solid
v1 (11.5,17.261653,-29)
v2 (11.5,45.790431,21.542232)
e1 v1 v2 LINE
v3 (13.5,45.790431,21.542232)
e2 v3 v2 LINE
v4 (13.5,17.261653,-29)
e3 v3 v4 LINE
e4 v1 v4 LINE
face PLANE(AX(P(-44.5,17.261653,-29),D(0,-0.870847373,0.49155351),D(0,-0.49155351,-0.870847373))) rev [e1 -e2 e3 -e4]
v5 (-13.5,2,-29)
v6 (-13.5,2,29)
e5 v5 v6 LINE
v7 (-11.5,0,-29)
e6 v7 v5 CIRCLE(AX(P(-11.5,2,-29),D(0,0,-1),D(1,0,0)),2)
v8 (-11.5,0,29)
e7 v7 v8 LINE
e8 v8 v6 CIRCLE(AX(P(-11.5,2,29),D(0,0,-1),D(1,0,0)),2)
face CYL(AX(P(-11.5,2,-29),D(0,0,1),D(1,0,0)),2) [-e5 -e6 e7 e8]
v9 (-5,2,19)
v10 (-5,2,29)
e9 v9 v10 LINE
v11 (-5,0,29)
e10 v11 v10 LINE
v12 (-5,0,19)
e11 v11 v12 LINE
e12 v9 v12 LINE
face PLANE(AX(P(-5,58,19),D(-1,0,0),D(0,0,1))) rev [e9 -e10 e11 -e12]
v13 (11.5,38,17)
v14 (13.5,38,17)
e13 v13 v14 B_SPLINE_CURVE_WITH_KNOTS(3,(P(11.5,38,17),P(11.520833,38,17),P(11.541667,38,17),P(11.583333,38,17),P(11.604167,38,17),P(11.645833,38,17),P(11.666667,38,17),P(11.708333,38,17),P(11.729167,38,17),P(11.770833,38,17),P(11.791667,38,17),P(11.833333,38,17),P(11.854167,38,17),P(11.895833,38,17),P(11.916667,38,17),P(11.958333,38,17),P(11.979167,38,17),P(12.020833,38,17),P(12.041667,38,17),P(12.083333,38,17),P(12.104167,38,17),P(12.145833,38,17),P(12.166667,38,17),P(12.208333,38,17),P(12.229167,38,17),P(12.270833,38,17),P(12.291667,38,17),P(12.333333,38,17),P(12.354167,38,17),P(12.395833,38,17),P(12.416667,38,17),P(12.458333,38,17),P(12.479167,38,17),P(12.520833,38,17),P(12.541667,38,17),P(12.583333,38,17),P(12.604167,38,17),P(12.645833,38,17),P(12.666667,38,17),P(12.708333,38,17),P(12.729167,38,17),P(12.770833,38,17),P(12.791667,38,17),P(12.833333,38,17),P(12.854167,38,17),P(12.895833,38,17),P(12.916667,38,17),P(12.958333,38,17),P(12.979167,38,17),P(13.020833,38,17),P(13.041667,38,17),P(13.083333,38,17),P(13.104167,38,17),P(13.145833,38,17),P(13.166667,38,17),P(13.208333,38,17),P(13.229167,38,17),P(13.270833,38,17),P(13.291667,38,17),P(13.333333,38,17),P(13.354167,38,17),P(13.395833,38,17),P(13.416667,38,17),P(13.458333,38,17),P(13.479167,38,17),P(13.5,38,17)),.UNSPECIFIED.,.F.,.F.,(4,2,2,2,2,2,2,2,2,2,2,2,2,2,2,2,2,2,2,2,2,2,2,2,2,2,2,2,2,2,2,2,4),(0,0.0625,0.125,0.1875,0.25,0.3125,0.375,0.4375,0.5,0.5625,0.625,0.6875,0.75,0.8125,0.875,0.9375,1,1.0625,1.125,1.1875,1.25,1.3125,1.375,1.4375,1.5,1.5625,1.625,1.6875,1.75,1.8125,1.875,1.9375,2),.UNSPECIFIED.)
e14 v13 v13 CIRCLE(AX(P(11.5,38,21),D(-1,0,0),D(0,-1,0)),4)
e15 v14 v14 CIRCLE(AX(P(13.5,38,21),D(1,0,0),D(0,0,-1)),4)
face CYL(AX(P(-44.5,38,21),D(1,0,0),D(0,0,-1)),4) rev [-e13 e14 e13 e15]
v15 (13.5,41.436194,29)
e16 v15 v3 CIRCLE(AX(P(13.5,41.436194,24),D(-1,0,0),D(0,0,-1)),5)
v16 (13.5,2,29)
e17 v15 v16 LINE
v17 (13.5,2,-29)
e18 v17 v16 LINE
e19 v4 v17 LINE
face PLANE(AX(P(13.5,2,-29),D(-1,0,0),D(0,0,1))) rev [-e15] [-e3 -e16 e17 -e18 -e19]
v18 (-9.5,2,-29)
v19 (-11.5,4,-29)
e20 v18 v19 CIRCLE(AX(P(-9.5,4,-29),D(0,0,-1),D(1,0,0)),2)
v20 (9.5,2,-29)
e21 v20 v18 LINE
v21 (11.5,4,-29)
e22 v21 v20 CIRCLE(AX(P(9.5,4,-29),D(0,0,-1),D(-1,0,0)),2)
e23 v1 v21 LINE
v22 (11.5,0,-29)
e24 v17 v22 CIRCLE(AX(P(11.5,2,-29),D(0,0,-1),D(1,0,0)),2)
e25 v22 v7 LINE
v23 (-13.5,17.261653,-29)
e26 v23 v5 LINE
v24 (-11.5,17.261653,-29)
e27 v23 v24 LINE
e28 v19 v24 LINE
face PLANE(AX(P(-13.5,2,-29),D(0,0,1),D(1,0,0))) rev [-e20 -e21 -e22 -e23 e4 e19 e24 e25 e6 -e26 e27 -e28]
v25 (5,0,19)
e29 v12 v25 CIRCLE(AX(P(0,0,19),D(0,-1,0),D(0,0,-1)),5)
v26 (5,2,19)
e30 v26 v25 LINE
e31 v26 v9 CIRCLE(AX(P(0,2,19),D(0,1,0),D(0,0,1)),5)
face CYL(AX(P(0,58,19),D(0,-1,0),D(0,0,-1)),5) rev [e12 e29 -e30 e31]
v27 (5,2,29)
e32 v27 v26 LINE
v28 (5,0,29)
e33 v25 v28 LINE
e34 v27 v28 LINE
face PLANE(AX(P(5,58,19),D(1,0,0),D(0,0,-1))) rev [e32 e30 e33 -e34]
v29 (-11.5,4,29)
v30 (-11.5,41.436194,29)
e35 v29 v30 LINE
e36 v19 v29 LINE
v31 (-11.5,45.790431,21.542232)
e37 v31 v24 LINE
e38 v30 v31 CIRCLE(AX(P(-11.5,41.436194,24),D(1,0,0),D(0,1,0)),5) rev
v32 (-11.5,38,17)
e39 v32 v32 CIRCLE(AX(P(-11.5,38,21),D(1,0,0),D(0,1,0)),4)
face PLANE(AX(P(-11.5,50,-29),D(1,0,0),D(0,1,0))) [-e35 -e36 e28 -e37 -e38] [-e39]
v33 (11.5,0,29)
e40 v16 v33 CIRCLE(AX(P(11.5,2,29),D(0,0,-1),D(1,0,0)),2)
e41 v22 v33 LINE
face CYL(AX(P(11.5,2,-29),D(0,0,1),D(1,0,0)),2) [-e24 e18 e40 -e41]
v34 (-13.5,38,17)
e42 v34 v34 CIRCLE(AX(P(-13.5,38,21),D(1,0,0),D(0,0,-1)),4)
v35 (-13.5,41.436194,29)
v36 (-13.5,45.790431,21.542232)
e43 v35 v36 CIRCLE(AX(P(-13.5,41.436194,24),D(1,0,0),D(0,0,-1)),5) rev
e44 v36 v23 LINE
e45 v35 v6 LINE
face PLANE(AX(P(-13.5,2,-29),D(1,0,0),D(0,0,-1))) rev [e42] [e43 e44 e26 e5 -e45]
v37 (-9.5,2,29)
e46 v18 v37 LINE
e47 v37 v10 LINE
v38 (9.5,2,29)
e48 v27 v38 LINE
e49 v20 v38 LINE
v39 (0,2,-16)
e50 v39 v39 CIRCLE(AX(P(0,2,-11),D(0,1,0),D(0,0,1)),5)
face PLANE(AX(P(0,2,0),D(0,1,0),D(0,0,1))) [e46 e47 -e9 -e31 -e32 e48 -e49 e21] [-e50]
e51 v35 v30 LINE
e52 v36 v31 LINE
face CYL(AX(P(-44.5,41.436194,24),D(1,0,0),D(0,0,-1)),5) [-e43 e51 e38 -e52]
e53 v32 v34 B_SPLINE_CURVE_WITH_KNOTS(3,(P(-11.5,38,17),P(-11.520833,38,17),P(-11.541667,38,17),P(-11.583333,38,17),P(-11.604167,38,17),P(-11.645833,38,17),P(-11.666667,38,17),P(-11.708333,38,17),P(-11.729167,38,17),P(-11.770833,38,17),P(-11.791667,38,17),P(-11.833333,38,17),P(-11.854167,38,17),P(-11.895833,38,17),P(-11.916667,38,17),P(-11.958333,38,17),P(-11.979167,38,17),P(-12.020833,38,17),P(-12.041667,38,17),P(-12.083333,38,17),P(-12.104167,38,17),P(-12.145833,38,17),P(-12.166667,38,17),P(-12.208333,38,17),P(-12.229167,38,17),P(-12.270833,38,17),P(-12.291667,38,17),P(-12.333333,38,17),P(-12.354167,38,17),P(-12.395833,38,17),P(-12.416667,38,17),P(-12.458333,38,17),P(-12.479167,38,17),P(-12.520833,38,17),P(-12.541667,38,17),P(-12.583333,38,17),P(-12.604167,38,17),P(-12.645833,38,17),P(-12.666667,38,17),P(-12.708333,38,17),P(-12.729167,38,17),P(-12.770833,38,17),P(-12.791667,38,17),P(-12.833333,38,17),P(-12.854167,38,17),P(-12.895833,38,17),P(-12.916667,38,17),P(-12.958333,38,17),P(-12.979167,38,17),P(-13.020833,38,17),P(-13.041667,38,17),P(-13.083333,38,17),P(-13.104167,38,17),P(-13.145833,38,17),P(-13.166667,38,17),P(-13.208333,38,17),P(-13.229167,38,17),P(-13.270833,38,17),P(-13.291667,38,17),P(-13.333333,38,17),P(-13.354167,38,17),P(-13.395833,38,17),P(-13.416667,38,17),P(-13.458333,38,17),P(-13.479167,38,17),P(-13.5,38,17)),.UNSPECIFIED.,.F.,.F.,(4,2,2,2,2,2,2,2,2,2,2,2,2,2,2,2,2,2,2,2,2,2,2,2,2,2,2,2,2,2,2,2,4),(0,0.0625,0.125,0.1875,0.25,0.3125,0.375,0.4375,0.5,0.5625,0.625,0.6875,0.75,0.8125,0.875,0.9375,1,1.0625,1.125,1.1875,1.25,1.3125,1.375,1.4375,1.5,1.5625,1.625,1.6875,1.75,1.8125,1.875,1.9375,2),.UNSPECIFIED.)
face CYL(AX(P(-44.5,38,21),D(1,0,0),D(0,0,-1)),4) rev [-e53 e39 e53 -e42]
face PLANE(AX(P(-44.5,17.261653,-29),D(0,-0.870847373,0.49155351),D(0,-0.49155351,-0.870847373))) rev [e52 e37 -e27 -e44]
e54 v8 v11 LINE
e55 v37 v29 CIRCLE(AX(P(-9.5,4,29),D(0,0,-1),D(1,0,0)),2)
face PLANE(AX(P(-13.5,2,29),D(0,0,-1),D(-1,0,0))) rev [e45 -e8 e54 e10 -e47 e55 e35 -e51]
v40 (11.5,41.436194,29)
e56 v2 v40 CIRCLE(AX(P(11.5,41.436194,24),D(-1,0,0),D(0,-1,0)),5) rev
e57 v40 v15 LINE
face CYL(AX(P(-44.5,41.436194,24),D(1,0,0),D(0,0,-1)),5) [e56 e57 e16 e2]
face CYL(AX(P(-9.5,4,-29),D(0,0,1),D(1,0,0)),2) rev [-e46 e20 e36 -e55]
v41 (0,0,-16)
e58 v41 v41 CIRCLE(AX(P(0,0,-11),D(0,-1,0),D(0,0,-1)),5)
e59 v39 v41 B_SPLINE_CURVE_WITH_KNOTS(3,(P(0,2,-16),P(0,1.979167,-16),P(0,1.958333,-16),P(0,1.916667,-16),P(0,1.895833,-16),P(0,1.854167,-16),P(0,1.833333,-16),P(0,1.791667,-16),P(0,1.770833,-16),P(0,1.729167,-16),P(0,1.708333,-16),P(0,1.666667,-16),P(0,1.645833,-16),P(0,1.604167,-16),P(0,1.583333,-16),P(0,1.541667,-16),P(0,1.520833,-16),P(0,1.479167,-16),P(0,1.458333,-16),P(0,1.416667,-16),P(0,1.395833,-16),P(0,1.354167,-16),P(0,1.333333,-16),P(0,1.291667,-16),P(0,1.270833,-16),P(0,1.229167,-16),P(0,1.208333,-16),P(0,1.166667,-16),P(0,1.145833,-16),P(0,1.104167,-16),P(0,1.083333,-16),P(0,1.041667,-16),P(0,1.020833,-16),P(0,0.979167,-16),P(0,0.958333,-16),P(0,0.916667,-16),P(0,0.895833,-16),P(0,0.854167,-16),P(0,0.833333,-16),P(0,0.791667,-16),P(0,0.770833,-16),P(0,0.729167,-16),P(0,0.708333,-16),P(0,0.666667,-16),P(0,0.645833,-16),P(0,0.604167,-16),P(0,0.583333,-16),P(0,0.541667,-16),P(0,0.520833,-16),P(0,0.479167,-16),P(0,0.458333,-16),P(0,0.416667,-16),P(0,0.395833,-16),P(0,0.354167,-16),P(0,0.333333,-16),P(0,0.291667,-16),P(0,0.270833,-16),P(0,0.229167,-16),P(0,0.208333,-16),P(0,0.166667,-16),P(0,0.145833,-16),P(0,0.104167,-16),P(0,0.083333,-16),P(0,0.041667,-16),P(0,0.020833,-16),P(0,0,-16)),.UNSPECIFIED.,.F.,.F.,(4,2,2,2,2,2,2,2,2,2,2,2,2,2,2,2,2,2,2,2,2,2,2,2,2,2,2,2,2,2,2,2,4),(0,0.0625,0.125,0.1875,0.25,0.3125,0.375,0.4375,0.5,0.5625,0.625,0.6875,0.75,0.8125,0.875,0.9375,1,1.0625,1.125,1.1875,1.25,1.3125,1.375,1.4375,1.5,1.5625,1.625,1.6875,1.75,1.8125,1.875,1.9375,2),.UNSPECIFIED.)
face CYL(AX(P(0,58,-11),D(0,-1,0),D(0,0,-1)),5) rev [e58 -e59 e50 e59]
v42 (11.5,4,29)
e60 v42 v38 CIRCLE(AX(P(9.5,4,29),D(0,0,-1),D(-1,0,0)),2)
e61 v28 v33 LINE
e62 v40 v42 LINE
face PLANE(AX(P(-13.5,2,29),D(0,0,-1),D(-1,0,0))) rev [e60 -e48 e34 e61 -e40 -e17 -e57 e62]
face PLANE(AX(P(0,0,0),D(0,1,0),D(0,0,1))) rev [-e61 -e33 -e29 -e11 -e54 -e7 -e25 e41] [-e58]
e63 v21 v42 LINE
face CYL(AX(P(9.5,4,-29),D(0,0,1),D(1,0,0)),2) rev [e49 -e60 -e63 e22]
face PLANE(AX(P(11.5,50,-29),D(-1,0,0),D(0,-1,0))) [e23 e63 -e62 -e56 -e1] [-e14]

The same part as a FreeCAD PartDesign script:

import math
import FreeCAD as App
import Part
import Sketcher


def add_polygon(sketch, points):
    """Adds a closed chain of lines whose ends are joined by coincident constraints."""
    first, n = sketch.GeometryCount, len(points)
    for a, b in zip(points, points[1:] + points[:1]):
        sketch.addGeometry(Part.LineSegment(App.Vector(*a, 0), App.Vector(*b, 0)), False)
    for i in range(n):
        sketch.addConstraint(Sketcher.Constraint("Coincident", first + i, 2, first + (i + 1) % n, 1))

doc = App.newDocument("Part")
body = doc.addObject("PartDesign::Body", "Body")

# Sketch on XZ plane
sketch1 = body.newObject("Sketcher::SketchObject", "Sketch")
sketch1.AttachmentSupport = (doc.getObject("XZ_Plane"), [""])
sketch1.MapMode = "FlatFace"
add_polygon(sketch1, [(-14, -29), (-14, 29), (14, 29), (14, -29)])  # lines 0-3
sketch1.addConstraint(Sketcher.Constraint("Vertical", 0))
sketch1.addConstraint(Sketcher.Constraint("Horizontal", 1))
sketch1.addConstraint(Sketcher.Constraint("Vertical", 2))
sketch1.addConstraint(Sketcher.Constraint("Horizontal", 3))
sketch1.addConstraint(Sketcher.Constraint("Symmetric", 0, 2, 2, 2, -1, 1))
sketch1.addConstraint(Sketcher.Constraint("DistanceX", 1, 1, 1, 2, 27.0))
sketch1.addConstraint(Sketcher.Constraint("DistanceY", 0, 1, 0, 2, 58.0))
pad1 = body.newObject("PartDesign::Pad", "Pad")
pad1.Profile = sketch1
pad1.Length = 2
pad1.Reversed = True

# Sketch on XY plane
sketch2 = body.newObject("Sketcher::SketchObject", "Sketch001")
sketch2.AttachmentSupport = (doc.getObject("XY_Plane"), [""])
sketch2.MapMode = "FlatFace"
sketch2.AttachmentOffset = App.Placement(App.Vector(0, 0, 29), App.Rotation())
sketch2.addGeometry(Part.LineSegment(App.Vector(-13.5, 50, 0), App.Vector(-13.5, 2, 0)), False)
sketch2.addGeometry(Part.ArcOfCircle(Part.Circle(App.Vector(-11.5, 2, 0), App.Vector(0, 0, 1), 2), math.radians(-180), math.radians(-90)), False)
sketch2.addGeometry(Part.LineSegment(App.Vector(-11.5, 0, 0), App.Vector(11.5, 0, 0)), False)
sketch2.addGeometry(Part.ArcOfCircle(Part.Circle(App.Vector(11.5, 2, 0), App.Vector(0, 0, 1), 2), math.radians(-90), math.radians(0)), False)
sketch2.addGeometry(Part.LineSegment(App.Vector(13.5, 2, 0), App.Vector(13.5, 50, 0)), False)
sketch2.addGeometry(Part.LineSegment(App.Vector(13.5, 50, 0), App.Vector(11.5, 50, 0)), False)
sketch2.addGeometry(Part.LineSegment(App.Vector(11.5, 50, 0), App.Vector(11.5, 4, 0)), False)
sketch2.addGeometry(Part.ArcOfCircle(Part.Circle(App.Vector(9.5, 4, 0), App.Vector(0, 0, 1), 2), math.radians(-90), math.radians(0)), False)
sketch2.addGeometry(Part.LineSegment(App.Vector(9.5, 2, 0), App.Vector(-9.5, 2, 0)), False)
sketch2.addGeometry(Part.ArcOfCircle(Part.Circle(App.Vector(-9.5, 4, 0), App.Vector(0, 0, 1), 2), math.radians(-180), math.radians(-90)), False)
sketch2.addGeometry(Part.LineSegment(App.Vector(-11.5, 4, 0), App.Vector(-11.5, 50, 0)), False)
sketch2.addGeometry(Part.LineSegment(App.Vector(-11.5, 50, 0), App.Vector(-13.5, 50, 0)), False)
sketch2.addConstraint(Sketcher.Constraint("Tangent", 0, 2, 1, 1))
sketch2.addConstraint(Sketcher.Constraint("Tangent", 1, 2, 2, 1))
sketch2.addConstraint(Sketcher.Constraint("Tangent", 2, 2, 3, 1))
sketch2.addConstraint(Sketcher.Constraint("Tangent", 3, 2, 4, 1))
sketch2.addConstraint(Sketcher.Constraint("Coincident", 4, 2, 5, 1))
sketch2.addConstraint(Sketcher.Constraint("Coincident", 5, 2, 6, 1))
sketch2.addConstraint(Sketcher.Constraint("Tangent", 6, 2, 7, 2))
sketch2.addConstraint(Sketcher.Constraint("Tangent", 7, 1, 8, 1))
sketch2.addConstraint(Sketcher.Constraint("Tangent", 8, 2, 9, 2))
sketch2.addConstraint(Sketcher.Constraint("Tangent", 9, 1, 10, 1))
sketch2.addConstraint(Sketcher.Constraint("Coincident", 10, 2, 11, 1))
sketch2.addConstraint(Sketcher.Constraint("Coincident", 11, 2, 0, 1))
sketch2.addConstraint(Sketcher.Constraint("Vertical", 0))
sketch2.addConstraint(Sketcher.Constraint("Horizontal", 2))
sketch2.addConstraint(Sketcher.Constraint("Vertical", 4))
sketch2.addConstraint(Sketcher.Constraint("Horizontal", 5))
sketch2.addConstraint(Sketcher.Constraint("Vertical", 6))
sketch2.addConstraint(Sketcher.Constraint("Horizontal", 8))
sketch2.addConstraint(Sketcher.Constraint("Vertical", 10))
sketch2.addConstraint(Sketcher.Constraint("Horizontal", 11))
sketch2.addConstraint(Sketcher.Constraint("Equal", 1, 3))
sketch2.addConstraint(Sketcher.Constraint("Equal", 3, 7))
sketch2.addConstraint(Sketcher.Constraint("Equal", 7, 9))
sketch2.addConstraint(Sketcher.Constraint("Symmetric", 1, 2, 2, 2, -1, 1))
sketch2.addConstraint(Sketcher.Constraint("Symmetric", 5, 2, 10, 2, -2))
sketch2.addConstraint(Sketcher.Constraint("Horizontal", 3, 2, 7, 1))
sketch2.addConstraint(Sketcher.Constraint("Vertical", 2, 2, 5, 2))
sketch2.addConstraint(Sketcher.Constraint("Radius", 1, 2.0))
sketch2.addConstraint(Sketcher.Constraint("DistanceX", 2, 1, 2, 2, 23.0))
sketch2.addConstraint(Sketcher.Constraint("DistanceY", 0, 2, 0, 1, 48.0))
pad2 = body.newObject("PartDesign::Pad", "Pad001")
pad2.Profile = sketch2
pad2.Length = 58
pad2.Reversed = True

# Sketch on YZ plane
sketch3 = body.newObject("Sketcher::SketchObject", "Sketch002")
sketch3.AttachmentSupport = (doc.getObject("YZ_Plane"), [""])
sketch3.MapMode = "FlatFace"
sketch3.AttachmentOffset = App.Placement(App.Vector(0, 0, 13.5), App.Rotation())
add_polygon(sketch3, [(50, 29), (17, -29), (50, -29)])  # lines 0-2
sketch3.addConstraint(Sketcher.Constraint("Horizontal", 1))
sketch3.addConstraint(Sketcher.Constraint("Vertical", 2))
sketch3.addConstraint(Sketcher.Constraint("DistanceY", 2, 1, 2, 2, 58.0))
sketch3.addConstraint(Sketcher.Constraint("DistanceY", 0, 2, -1, 1, 29.0))
sketch3.addConstraint(Sketcher.Constraint("DistanceX", -1, 1, 1, 2, 50.0))
sketch3.addConstraint(Sketcher.Constraint("DistanceX", 1, 1, 1, 2, 32.738347))
pocket1 = body.newObject("PartDesign::Pocket", "Pocket")
pocket1.Profile = sketch3
pocket1.Length = 58

# Sketch on YZ plane
sketch4 = body.newObject("Sketcher::SketchObject", "Sketch003")
sketch4.AttachmentSupport = (doc.getObject("YZ_Plane"), [""])
sketch4.MapMode = "FlatFace"
sketch4.AttachmentOffset = App.Placement(App.Vector(0, 0, 13.5), App.Rotation())
sketch4.addGeometry(Part.Circle(App.Vector(38, 21, 0), App.Vector(0, 0, 1), 4), False)
sketch4.addConstraint(Sketcher.Constraint("Diameter", 0, 8.0))
sketch4.addConstraint(Sketcher.Constraint("DistanceX", -1, 1, 0, 3, 38.0))
sketch4.addConstraint(Sketcher.Constraint("DistanceY", -1, 1, 0, 3, 21.0))
pocket2 = body.newObject("PartDesign::Pocket", "Pocket001")
pocket2.Profile = sketch4
pocket2.Length = 58

# Sketch on YZ plane
sketch5 = body.newObject("Sketcher::SketchObject", "Sketch004")
sketch5.AttachmentSupport = (doc.getObject("YZ_Plane"), [""])
sketch5.MapMode = "FlatFace"
sketch5.AttachmentOffset = App.Placement(App.Vector(0, 0, 13.5), App.Rotation())
sketch5.addGeometry(Part.LineSegment(App.Vector(50, 29, 0), App.Vector(41.4, 29, 0)), False)
sketch5.addGeometry(Part.ArcOfCircle(Part.Circle(App.Vector(41.4, 24, 0), App.Vector(0, 0, 1), 5), math.radians(-29), math.radians(90)), False)
sketch5.addGeometry(Part.LineSegment(App.Vector(45.8, 21.5, 0), App.Vector(50, 29, 0)), False)
sketch5.addConstraint(Sketcher.Constraint("Tangent", 0, 2, 1, 2))
sketch5.addConstraint(Sketcher.Constraint("Tangent", 1, 1, 2, 1))
sketch5.addConstraint(Sketcher.Constraint("Coincident", 2, 2, 0, 1))
sketch5.addConstraint(Sketcher.Constraint("Horizontal", 0))
sketch5.addConstraint(Sketcher.Constraint("Radius", 1, 5.0))
sketch5.addConstraint(Sketcher.Constraint("DistanceY", -1, 1, 1, 3, 24.0))
sketch5.addConstraint(Sketcher.Constraint("DistanceX", -1, 1, 2, 2, 50.0))
sketch5.addConstraint(Sketcher.Constraint("DistanceX", 0, 2, 0, 1, 8.563806))
pocket3 = body.newObject("PartDesign::Pocket", "Pocket002")
pocket3.Profile = sketch5
pocket3.Length = 58

# Sketch on XY plane
sketch6 = body.newObject("Sketcher::SketchObject", "Sketch005")
sketch6.AttachmentSupport = (doc.getObject("XY_Plane"), [""])
sketch6.MapMode = "FlatFace"
sketch6.AttachmentOffset = App.Placement(App.Vector(0, 0, 29), App.Rotation())
sketch6.addGeometry(Part.LineSegment(App.Vector(-13.5, 0, 0), App.Vector(-11.5, 0, 0)), False)
sketch6.addGeometry(Part.ArcOfCircle(Part.Circle(App.Vector(-11.5, 2, 0), App.Vector(0, 0, 1), 2), math.radians(-180), math.radians(-90)), False)
sketch6.addGeometry(Part.LineSegment(App.Vector(-13.5, 2, 0), App.Vector(-13.5, 0, 0)), False)
sketch6.addGeometry(Part.LineSegment(App.Vector(13.5, 0, 0), App.Vector(13.5, 2, 0)), False)
sketch6.addGeometry(Part.ArcOfCircle(Part.Circle(App.Vector(11.5, 2, 0), App.Vector(0, 0, 1), 2), math.radians(-90), math.radians(0)), False)
sketch6.addGeometry(Part.LineSegment(App.Vector(11.5, 0, 0), App.Vector(13.5, 0, 0)), False)
sketch6.addConstraint(Sketcher.Constraint("Tangent", 0, 2, 1, 2))
sketch6.addConstraint(Sketcher.Constraint("Tangent", 1, 1, 2, 1))
sketch6.addConstraint(Sketcher.Constraint("Coincident", 2, 2, 0, 1))
sketch6.addConstraint(Sketcher.Constraint("Tangent", 3, 2, 4, 2))
sketch6.addConstraint(Sketcher.Constraint("Tangent", 4, 1, 5, 1))
sketch6.addConstraint(Sketcher.Constraint("Coincident", 5, 2, 3, 1))
sketch6.addConstraint(Sketcher.Constraint("Horizontal", 0))
sketch6.addConstraint(Sketcher.Constraint("Vertical", 2))
sketch6.addConstraint(Sketcher.Constraint("Vertical", 3))
sketch6.addConstraint(Sketcher.Constraint("Horizontal", 5))
sketch6.addConstraint(Sketcher.Constraint("Equal", 1, 4))
sketch6.addConstraint(Sketcher.Constraint("Symmetric", 0, 2, 4, 1, -1, 1))
sketch6.addConstraint(Sketcher.Constraint("PointOnObject", 0, 2, -1))
sketch6.addConstraint(Sketcher.Constraint("Radius", 1, 2.0))
sketch6.addConstraint(Sketcher.Constraint("DistanceX", 1, 3, 4, 3, 23.0))
pocket4 = body.newObject("PartDesign::Pocket", "Pocket003")
pocket4.Profile = sketch6
pocket4.Length = 58

# Sketch on XZ plane
sketch7 = body.newObject("Sketcher::SketchObject", "Sketch006")
sketch7.AttachmentSupport = (doc.getObject("XZ_Plane"), [""])
sketch7.MapMode = "FlatFace"
sketch7.addGeometry(Part.Circle(App.Vector(0, -11, 0), App.Vector(0, 0, 1), 5), False)
sketch7.addGeometry(Part.LineSegment(App.Vector(-5, 29, 0), App.Vector(-5, 19, 0)), False)
sketch7.addGeometry(Part.ArcOfCircle(Part.Circle(App.Vector(0, 19, 0), App.Vector(0, 0, 1), 5), math.radians(180), math.radians(360)), False)
sketch7.addGeometry(Part.LineSegment(App.Vector(5, 19, 0), App.Vector(5, 29, 0)), False)
sketch7.addGeometry(Part.LineSegment(App.Vector(5, 29, 0), App.Vector(-5, 29, 0)), False)
sketch7.addConstraint(Sketcher.Constraint("Tangent", 1, 2, 2, 1))
sketch7.addConstraint(Sketcher.Constraint("Tangent", 2, 2, 3, 1))
sketch7.addConstraint(Sketcher.Constraint("Coincident", 3, 2, 4, 1))
sketch7.addConstraint(Sketcher.Constraint("Coincident", 4, 2, 1, 1))
sketch7.addConstraint(Sketcher.Constraint("Vertical", 1))
sketch7.addConstraint(Sketcher.Constraint("Vertical", 3))
sketch7.addConstraint(Sketcher.Constraint("Horizontal", 4))
sketch7.addConstraint(Sketcher.Constraint("Equal", 0, 2))
sketch7.addConstraint(Sketcher.Constraint("PointOnObject", 0, 3, -2))
sketch7.addConstraint(Sketcher.Constraint("PointOnObject", 2, 3, -2))
sketch7.addConstraint(Sketcher.Constraint("Equal", 4, 1))
sketch7.addConstraint(Sketcher.Constraint("Diameter", 0, 10.0))
sketch7.addConstraint(Sketcher.Constraint("DistanceY", 0, 3, -1, 1, 11.0))
sketch7.addConstraint(Sketcher.Constraint("DistanceY", -1, 1, 2, 3, 19.0))
pocket5 = body.newObject("PartDesign::Pocket", "Pocket004")
pocket5.Profile = sketch7
pocket5.Length = 58

doc.recompute()
